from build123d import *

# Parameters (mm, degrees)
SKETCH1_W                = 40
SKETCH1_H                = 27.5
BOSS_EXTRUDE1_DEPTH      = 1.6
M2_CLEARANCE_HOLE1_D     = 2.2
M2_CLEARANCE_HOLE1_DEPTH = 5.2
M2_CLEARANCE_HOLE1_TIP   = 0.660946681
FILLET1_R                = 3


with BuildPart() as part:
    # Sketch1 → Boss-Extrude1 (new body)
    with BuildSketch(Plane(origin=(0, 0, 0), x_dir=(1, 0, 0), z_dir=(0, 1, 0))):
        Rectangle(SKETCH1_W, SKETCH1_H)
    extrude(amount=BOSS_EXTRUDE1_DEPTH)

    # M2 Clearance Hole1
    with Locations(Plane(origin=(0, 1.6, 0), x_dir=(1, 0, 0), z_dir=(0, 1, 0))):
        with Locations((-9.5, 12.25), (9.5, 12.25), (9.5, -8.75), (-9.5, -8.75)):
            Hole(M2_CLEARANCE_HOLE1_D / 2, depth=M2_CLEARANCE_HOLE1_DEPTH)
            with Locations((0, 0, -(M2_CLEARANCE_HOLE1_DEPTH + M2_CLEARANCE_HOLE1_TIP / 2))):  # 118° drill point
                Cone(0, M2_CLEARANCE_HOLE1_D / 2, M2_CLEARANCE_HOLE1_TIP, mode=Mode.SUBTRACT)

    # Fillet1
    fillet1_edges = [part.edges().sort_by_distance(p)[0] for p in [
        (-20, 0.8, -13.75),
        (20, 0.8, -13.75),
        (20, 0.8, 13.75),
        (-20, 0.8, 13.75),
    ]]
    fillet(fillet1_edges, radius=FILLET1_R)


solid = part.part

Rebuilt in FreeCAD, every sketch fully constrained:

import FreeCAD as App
import Part
import Sketcher
from FreeCAD import Vector
Q = App.Units.Quantity


def edges_at(feature, points):
    """Names of the edges that pass closest to the given points."""
    edges = feature.Shape.Edges
    near = lambda p: min(range(len(edges)), key=lambda i: edges[i].distToShape(Part.Vertex(*p))[0])
    return sorted({f"Edge{near(p) + 1}" for p in points})

doc = App.newDocument("Part")
body = doc.addObject("PartDesign::Body", "Body")

sketch1 = body.newObject("Sketcher::SketchObject", "Sketch")
sketch1.AttachmentSupport = (doc.getObject("XZ_Plane"), [""])
sketch1.MapMode = "FlatFace"
sketch1.addGeometry(Part.LineSegment(Vector(-20, -14, 0), Vector(-20, 14, 0)), False)
sketch1.addGeometry(Part.LineSegment(Vector(-20, 14, 0), Vector(20, 14, 0)), False)
sketch1.addGeometry(Part.LineSegment(Vector(20, 14, 0), Vector(20, -14, 0)), False)
sketch1.addGeometry(Part.LineSegment(Vector(20, -14, 0), Vector(-20, -14, 0)), False)
sketch1.addConstraint(Sketcher.Constraint("Coincident", 0, 2, 1, 1))
sketch1.addConstraint(Sketcher.Constraint("Coincident", 1, 2, 2, 1))
sketch1.addConstraint(Sketcher.Constraint("Coincident", 2, 2, 3, 1))
sketch1.addConstraint(Sketcher.Constraint("Coincident", 3, 2, 0, 1))
sketch1.addConstraint(Sketcher.Constraint("Vertical", 0))
sketch1.addConstraint(Sketcher.Constraint("Horizontal", 1))
sketch1.addConstraint(Sketcher.Constraint("Vertical", 2))
sketch1.addConstraint(Sketcher.Constraint("Horizontal", 3))
sketch1.addConstraint(Sketcher.Constraint("Symmetric", 0, 2, 2, 2, -1, 1))
sketch1.addConstraint(Sketcher.Constraint("DistanceX", 1, 1, 1, 2, Q("40 mm")))
sketch1.addConstraint(Sketcher.Constraint("DistanceY", 0, 1, 0, 2, Q("27.5 mm")))
pad1 = body.newObject("PartDesign::Pad", "Pad")
pad1.Profile = sketch1
pad1.Length = 1.6
pad1.Reversed = True

sketch2 = body.newObject("Sketcher::SketchObject", "Sketch001")
sketch2.AttachmentSupport = (doc.getObject("XZ_Plane"), [""])
sketch2.MapMode = "FlatFace"
sketch2.AttachmentOffset = App.Placement(Vector(0, 0, -1.6), App.Rotation())
sketch2.addGeometry(Part.Circle(Vector(-9.5, -12.2, 0), Vector(0, 0, 1), 1.1), False)
sketch2.addGeometry(Part.Circle(Vector(9.5, -12.2, 0), Vector(0, 0, 1), 1.1), False)
sketch2.addGeometry(Part.Circle(Vector(9.5, 8.8, 0), Vector(0, 0, 1), 1.1), False)
sketch2.addGeometry(Part.Circle(Vector(-9.5, 8.8, 0), Vector(0, 0, 1), 1.1), False)
sketch2.addConstraint(Sketcher.Constraint("Equal", 0, 1))
sketch2.addConstraint(Sketcher.Constraint("Equal", 1, 2))
sketch2.addConstraint(Sketcher.Constraint("Equal", 2, 3))
sketch2.addConstraint(Sketcher.Constraint("Symmetric", 0, 3, 1, 3, -2))
sketch2.addConstraint(Sketcher.Constraint("Symmetric", 2, 3, 3, 3, -2))
sketch2.addConstraint(Sketcher.Constraint("Vertical", 1, 3, 2, 3))
sketch2.addConstraint(Sketcher.Constraint("Diameter", 0, Q("2.2 mm")))
sketch2.addConstraint(Sketcher.Constraint("DistanceX", 0, 3, 1, 3, Q("19 mm")))
sketch2.addConstraint(Sketcher.Constraint("DistanceY", 1, 3, 2, 3, Q("21 mm")))
sketch2.addConstraint(Sketcher.Constraint("DistanceY", 0, 3, -1, 1, Q("12.25 mm")))
doc.recompute()
hole = body.newObject("PartDesign::Hole", "Hole")
hole.Profile = sketch2
hole.ThreadType = "None"
hole.Diameter = 2.2
hole.DepthType = "Dimension"
hole.Depth = 5.2
hole.DrillPoint = "Angled"
hole.DrillPointAngle = 118
hole.Reversed = True
doc.recompute()

fillet = body.newObject("PartDesign::Fillet", "Fillet")
fillet.Base = (hole, edges_at(hole, [
    (-20, 0.8, -13.75),
    (20, 0.8, -13.75),
    (20, 0.8, 13.75),
    (-20, 0.8, 13.75),
]))
fillet.Radius = 3

doc.recompute()
